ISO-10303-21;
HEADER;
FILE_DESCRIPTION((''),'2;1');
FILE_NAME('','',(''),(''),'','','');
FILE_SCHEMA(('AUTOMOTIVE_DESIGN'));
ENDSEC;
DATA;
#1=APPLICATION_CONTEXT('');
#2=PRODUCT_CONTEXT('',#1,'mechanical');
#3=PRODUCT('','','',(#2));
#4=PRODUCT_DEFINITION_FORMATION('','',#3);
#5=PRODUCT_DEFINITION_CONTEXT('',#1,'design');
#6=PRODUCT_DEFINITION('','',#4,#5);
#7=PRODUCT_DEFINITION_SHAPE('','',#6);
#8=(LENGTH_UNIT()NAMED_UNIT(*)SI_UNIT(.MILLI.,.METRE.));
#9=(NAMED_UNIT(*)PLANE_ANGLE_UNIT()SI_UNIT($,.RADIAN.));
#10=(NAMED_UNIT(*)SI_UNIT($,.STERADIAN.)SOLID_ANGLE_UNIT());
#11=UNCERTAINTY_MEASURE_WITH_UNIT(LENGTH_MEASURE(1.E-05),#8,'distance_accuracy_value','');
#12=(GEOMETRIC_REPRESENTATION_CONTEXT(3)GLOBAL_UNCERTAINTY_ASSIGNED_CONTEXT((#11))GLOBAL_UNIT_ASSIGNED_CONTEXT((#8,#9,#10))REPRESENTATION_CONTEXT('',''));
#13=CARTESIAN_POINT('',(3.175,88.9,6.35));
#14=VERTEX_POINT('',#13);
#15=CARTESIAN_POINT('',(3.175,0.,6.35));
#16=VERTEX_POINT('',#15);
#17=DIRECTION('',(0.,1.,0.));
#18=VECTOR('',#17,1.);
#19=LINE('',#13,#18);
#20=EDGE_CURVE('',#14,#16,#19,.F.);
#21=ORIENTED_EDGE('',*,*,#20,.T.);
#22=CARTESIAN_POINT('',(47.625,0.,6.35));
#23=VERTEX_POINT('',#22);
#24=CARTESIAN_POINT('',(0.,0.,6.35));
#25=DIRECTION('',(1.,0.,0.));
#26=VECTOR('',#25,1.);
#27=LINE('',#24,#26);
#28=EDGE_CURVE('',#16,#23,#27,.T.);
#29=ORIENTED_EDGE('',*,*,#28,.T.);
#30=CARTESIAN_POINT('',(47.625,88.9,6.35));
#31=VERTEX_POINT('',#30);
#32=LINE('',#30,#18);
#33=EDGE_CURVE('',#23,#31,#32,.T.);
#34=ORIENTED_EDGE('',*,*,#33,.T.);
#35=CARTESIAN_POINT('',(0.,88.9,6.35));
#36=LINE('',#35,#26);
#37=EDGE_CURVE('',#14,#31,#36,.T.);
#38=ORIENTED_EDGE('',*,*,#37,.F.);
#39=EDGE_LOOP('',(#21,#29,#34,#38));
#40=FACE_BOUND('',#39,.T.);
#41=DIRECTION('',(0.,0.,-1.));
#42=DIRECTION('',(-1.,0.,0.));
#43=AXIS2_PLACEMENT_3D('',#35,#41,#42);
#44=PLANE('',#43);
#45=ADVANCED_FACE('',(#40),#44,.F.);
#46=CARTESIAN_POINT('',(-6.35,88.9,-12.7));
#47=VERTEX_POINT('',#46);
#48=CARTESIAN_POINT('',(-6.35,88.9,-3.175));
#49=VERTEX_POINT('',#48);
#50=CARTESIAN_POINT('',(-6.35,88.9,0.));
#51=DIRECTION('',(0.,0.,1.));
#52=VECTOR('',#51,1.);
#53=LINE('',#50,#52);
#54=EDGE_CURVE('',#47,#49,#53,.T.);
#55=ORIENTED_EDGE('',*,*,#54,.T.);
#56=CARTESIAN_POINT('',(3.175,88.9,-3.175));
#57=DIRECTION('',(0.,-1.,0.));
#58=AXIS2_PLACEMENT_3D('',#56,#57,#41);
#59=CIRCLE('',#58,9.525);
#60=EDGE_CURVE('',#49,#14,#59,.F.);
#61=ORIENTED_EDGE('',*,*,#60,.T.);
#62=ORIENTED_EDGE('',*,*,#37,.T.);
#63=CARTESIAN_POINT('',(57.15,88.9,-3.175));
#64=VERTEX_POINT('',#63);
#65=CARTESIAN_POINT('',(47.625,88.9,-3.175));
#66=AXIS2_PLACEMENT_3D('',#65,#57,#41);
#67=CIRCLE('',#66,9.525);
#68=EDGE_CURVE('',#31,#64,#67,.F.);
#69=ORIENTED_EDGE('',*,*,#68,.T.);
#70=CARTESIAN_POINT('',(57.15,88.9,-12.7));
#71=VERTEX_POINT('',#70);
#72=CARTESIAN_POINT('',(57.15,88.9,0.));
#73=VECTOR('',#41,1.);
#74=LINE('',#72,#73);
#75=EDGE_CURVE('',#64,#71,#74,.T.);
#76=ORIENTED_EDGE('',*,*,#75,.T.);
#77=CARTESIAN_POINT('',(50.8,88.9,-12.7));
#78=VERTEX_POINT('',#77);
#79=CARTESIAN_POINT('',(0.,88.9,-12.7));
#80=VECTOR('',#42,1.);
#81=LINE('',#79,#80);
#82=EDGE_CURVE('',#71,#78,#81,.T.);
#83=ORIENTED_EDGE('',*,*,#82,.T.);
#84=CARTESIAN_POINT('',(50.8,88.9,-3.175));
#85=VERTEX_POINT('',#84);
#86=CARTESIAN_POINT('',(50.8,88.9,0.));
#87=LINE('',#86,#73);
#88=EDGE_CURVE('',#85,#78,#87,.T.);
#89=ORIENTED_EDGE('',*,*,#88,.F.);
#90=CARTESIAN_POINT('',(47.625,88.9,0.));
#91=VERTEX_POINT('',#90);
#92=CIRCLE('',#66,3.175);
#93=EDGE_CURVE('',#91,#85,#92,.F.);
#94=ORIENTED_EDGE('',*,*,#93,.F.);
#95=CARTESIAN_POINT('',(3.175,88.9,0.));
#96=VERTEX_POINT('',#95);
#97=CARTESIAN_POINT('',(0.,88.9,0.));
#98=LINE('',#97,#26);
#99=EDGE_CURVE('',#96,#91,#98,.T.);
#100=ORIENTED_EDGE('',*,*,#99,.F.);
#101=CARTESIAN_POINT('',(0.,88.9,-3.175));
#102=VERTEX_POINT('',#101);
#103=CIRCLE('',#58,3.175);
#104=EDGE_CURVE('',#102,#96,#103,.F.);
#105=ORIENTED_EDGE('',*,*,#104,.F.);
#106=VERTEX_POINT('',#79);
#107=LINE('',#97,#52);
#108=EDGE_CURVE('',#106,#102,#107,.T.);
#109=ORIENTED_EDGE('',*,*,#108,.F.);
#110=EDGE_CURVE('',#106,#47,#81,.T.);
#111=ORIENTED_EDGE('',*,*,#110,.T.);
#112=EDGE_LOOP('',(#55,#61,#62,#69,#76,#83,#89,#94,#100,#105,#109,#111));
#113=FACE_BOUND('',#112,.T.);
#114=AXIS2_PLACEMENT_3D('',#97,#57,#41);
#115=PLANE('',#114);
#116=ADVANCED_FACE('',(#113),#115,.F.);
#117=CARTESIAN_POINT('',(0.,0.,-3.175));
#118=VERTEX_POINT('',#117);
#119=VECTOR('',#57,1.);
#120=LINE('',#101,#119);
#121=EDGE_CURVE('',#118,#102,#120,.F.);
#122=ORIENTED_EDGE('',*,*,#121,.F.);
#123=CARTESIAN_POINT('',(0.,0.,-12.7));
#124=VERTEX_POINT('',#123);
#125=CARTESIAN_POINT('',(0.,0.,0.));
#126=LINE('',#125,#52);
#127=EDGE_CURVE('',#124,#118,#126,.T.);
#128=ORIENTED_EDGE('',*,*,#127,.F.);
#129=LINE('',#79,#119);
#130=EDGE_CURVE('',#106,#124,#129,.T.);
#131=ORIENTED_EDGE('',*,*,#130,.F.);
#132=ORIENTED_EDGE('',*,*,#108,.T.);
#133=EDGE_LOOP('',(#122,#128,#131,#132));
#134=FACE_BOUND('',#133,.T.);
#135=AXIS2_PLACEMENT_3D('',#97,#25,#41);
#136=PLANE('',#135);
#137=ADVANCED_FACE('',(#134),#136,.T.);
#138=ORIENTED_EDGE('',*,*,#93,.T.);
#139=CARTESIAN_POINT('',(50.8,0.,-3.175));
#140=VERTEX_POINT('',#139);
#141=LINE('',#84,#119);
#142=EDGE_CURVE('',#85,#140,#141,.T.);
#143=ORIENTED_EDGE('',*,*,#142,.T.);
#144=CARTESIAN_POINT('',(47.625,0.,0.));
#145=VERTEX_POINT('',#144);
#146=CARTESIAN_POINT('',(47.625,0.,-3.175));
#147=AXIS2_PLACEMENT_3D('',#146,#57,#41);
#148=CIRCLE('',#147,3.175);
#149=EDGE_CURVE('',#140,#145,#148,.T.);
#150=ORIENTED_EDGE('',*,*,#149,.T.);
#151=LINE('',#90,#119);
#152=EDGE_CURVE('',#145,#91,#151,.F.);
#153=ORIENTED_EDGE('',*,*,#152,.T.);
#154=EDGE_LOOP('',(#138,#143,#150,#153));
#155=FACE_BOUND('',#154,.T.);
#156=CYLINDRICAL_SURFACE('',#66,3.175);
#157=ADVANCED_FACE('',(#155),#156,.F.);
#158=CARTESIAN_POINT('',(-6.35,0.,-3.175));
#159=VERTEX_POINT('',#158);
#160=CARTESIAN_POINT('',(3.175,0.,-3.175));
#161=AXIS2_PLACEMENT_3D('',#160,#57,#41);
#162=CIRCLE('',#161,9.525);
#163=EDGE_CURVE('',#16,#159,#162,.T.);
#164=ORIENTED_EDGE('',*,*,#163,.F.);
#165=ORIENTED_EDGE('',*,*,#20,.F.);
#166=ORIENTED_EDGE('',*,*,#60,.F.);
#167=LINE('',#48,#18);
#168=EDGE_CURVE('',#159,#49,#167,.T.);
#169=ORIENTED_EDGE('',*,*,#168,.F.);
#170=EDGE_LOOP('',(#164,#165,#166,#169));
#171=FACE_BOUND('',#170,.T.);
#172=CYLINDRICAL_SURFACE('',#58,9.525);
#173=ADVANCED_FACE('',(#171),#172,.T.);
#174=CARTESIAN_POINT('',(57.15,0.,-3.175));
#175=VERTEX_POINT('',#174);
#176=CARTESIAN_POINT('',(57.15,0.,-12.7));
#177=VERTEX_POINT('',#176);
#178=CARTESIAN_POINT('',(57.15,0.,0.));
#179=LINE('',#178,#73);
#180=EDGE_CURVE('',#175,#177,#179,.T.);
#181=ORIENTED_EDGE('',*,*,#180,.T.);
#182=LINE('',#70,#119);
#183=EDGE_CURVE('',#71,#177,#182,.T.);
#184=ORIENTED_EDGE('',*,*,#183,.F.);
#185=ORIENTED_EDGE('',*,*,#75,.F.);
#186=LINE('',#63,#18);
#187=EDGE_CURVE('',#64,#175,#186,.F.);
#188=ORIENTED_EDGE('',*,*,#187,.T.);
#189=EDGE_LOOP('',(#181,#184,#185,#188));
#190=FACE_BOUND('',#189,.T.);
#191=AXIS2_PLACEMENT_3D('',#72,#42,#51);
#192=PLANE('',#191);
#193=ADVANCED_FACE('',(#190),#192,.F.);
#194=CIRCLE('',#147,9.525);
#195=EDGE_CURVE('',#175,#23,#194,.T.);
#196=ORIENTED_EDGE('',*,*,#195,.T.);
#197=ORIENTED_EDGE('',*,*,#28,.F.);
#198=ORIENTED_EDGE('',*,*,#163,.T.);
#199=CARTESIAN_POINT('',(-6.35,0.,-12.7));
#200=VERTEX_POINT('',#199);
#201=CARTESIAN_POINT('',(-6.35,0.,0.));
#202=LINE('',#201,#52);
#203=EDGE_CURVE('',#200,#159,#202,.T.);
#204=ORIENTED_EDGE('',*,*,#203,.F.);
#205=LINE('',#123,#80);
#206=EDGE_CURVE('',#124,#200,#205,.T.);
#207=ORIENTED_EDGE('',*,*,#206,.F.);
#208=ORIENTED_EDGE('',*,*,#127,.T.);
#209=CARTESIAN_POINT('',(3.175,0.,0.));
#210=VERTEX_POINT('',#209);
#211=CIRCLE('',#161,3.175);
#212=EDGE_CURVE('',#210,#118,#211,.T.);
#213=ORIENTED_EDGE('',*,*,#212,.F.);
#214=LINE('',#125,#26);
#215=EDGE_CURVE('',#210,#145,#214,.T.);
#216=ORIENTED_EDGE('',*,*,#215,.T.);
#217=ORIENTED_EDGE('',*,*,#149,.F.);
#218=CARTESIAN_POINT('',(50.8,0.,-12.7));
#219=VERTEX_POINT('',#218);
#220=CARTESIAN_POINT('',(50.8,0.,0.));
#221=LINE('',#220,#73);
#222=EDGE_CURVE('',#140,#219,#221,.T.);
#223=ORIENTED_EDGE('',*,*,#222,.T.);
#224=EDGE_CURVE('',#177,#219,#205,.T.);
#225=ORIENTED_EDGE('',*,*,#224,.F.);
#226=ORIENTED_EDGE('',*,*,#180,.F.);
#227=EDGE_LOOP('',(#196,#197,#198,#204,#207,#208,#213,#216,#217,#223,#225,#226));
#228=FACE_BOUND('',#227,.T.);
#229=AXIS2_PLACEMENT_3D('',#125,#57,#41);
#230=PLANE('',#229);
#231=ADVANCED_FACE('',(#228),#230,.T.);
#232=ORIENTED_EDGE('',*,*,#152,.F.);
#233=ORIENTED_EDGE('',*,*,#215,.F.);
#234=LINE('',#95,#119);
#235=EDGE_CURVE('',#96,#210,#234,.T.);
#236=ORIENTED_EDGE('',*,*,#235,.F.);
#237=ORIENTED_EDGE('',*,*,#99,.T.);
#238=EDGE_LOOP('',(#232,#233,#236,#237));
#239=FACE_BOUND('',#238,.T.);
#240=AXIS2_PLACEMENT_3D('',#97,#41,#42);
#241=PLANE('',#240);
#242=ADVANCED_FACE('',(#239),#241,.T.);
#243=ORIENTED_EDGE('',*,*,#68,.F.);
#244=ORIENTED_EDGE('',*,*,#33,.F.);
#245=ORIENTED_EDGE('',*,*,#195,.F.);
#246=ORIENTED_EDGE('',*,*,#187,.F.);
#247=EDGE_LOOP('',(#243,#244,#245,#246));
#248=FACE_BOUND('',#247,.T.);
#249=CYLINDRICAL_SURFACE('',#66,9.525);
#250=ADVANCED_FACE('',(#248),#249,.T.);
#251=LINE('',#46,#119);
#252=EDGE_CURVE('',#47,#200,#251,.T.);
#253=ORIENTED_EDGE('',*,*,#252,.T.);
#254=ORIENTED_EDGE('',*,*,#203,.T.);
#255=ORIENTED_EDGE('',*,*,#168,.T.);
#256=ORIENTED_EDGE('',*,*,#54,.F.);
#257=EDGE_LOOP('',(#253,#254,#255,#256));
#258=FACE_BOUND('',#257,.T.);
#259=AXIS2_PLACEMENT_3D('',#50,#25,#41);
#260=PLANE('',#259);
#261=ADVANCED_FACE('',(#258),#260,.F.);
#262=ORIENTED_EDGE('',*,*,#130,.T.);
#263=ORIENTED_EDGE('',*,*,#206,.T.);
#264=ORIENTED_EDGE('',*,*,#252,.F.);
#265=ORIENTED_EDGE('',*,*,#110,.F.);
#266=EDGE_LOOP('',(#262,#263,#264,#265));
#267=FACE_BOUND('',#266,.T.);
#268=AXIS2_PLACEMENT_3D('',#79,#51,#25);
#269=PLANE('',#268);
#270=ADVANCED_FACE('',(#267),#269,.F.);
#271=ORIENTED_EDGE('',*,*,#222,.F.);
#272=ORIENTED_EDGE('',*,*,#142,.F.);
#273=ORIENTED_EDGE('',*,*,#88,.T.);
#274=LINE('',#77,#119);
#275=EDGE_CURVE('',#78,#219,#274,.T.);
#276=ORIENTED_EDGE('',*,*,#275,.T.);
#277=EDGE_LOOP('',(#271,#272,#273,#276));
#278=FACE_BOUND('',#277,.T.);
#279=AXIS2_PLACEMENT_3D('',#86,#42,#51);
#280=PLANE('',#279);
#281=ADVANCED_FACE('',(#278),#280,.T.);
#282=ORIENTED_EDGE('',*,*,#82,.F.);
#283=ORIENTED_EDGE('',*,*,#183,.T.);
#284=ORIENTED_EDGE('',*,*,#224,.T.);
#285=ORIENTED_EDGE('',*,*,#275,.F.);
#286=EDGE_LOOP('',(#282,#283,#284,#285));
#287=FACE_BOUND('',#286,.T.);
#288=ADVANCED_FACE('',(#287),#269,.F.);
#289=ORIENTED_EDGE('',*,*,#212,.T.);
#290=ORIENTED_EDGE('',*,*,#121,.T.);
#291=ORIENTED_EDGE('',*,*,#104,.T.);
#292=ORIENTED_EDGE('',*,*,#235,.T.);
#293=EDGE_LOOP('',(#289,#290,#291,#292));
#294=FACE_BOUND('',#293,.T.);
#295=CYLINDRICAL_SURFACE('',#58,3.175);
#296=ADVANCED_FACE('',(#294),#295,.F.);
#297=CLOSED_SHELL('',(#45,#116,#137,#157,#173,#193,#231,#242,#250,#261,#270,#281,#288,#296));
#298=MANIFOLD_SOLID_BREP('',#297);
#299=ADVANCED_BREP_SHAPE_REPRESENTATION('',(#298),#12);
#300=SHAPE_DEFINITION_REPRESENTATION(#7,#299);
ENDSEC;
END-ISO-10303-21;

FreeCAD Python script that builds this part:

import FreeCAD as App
import Part
import Sketcher
from FreeCAD import Vector
Q = App.Units.Quantity


def edges_at(feature, points):
    """Names of the edges that pass closest to the given points."""
    edges = feature.Shape.Edges
    near = lambda p: min(range(len(edges)), key=lambda i: edges[i].distToShape(Part.Vertex(*p))[0])
    return sorted({f"Edge{near(p) + 1}" for p in points})


def faces_at(feature, points):
    """Names of the faces that lie closest to the given points."""
    faces = feature.Shape.Faces
    near = lambda p: min(range(len(faces)), key=lambda i: faces[i].distToShape(Part.Vertex(*p))[0])
    return sorted({f"Face{near(p) + 1}" for p in points})


def add_polygon(sketch, points):
    """Adds a closed chain of lines whose ends are joined by coincident constraints."""
    first, n = sketch.GeometryCount, len(points)
    for a, b in zip(points, points[1:] + points[:1]):
        sketch.addGeometry(Part.LineSegment(App.Vector(*a, 0), App.Vector(*b, 0)), False)
    for i in range(n):
        sketch.addConstraint(Sketcher.Constraint("Coincident", first + i, 2, first + (i + 1) % n, 1))

doc = App.newDocument("Part")
params = doc.addObject("Spreadsheet::Sheet", "Params")
for row, (alias, value) in enumerate([
    ("sketch1_width", "2 in"),
    ("sketch1_height", "0.5 in"),
    ("pad1_length", "3.5 in"),
    ("fillet_radius", "0.125 in"),
    ("thickness_wall", "0.25 in"),
], start=1):
    params.set(f"A{row}", alias)
    params.set(f"B{row}", "=" + value)
    params.setAlias(f"B{row}", alias)

body = doc.addObject("PartDesign::Body", "Body")

# Sketch on XZ plane
sketch1 = body.newObject("Sketcher::SketchObject", "Sketch")
sketch1.AttachmentSupport = (doc.getObject("XZ_Plane"), [""])
sketch1.MapMode = "FlatFace"
add_polygon(sketch1, [(0, -12.7), (0, 0), (50.8, 0), (50.8, -12.7)])  # lines 0-3
sketch1.addConstraint([
    Sketcher.Constraint("Vertical", 0),
    Sketcher.Constraint("Horizontal", 1),
    Sketcher.Constraint("Vertical", 2),
    Sketcher.Constraint("Horizontal", 3),
    Sketcher.Constraint("Coincident", 0, 2, -1, 1),
    Sketcher.Constraint("DistanceX", 1, 1, 1, 2, Q("2 in")),
    Sketcher.Constraint("DistanceY", 0, 1, 0, 2, Q("0.5 in")),
])
sketch1.setExpression("Constraints[9]", "Params.sketch1_width")
sketch1.setExpression("Constraints[10]", "Params.sketch1_height")
pad1 = body.newObject("PartDesign::Pad", "Pad")
pad1.Profile = sketch1
pad1.setExpression("Length", "Params.pad1_length")
pad1.Reversed = True
doc.recompute()

fillet = body.newObject("PartDesign::Fillet", "Fillet")
fillet.Base = (pad1, edges_at(pad1, [(50.8, 44.45, 0), (0, 44.45, 0)]))
fillet.setExpression("Radius", "Params.fillet_radius")
doc.recompute()

thickness = body.newObject("PartDesign::Thickness", "Thickness")
thickness.Base = (fillet, faces_at(fillet, [(25.4, 0, -6.35), (25.4, 88.9, -6.35), (25.4, 44.45, -12.7)]))
thickness.setExpression("Value", "Params.thickness_wall")
thickness.Reversed = False
thickness.Join = "Intersection"

doc.recompute()
